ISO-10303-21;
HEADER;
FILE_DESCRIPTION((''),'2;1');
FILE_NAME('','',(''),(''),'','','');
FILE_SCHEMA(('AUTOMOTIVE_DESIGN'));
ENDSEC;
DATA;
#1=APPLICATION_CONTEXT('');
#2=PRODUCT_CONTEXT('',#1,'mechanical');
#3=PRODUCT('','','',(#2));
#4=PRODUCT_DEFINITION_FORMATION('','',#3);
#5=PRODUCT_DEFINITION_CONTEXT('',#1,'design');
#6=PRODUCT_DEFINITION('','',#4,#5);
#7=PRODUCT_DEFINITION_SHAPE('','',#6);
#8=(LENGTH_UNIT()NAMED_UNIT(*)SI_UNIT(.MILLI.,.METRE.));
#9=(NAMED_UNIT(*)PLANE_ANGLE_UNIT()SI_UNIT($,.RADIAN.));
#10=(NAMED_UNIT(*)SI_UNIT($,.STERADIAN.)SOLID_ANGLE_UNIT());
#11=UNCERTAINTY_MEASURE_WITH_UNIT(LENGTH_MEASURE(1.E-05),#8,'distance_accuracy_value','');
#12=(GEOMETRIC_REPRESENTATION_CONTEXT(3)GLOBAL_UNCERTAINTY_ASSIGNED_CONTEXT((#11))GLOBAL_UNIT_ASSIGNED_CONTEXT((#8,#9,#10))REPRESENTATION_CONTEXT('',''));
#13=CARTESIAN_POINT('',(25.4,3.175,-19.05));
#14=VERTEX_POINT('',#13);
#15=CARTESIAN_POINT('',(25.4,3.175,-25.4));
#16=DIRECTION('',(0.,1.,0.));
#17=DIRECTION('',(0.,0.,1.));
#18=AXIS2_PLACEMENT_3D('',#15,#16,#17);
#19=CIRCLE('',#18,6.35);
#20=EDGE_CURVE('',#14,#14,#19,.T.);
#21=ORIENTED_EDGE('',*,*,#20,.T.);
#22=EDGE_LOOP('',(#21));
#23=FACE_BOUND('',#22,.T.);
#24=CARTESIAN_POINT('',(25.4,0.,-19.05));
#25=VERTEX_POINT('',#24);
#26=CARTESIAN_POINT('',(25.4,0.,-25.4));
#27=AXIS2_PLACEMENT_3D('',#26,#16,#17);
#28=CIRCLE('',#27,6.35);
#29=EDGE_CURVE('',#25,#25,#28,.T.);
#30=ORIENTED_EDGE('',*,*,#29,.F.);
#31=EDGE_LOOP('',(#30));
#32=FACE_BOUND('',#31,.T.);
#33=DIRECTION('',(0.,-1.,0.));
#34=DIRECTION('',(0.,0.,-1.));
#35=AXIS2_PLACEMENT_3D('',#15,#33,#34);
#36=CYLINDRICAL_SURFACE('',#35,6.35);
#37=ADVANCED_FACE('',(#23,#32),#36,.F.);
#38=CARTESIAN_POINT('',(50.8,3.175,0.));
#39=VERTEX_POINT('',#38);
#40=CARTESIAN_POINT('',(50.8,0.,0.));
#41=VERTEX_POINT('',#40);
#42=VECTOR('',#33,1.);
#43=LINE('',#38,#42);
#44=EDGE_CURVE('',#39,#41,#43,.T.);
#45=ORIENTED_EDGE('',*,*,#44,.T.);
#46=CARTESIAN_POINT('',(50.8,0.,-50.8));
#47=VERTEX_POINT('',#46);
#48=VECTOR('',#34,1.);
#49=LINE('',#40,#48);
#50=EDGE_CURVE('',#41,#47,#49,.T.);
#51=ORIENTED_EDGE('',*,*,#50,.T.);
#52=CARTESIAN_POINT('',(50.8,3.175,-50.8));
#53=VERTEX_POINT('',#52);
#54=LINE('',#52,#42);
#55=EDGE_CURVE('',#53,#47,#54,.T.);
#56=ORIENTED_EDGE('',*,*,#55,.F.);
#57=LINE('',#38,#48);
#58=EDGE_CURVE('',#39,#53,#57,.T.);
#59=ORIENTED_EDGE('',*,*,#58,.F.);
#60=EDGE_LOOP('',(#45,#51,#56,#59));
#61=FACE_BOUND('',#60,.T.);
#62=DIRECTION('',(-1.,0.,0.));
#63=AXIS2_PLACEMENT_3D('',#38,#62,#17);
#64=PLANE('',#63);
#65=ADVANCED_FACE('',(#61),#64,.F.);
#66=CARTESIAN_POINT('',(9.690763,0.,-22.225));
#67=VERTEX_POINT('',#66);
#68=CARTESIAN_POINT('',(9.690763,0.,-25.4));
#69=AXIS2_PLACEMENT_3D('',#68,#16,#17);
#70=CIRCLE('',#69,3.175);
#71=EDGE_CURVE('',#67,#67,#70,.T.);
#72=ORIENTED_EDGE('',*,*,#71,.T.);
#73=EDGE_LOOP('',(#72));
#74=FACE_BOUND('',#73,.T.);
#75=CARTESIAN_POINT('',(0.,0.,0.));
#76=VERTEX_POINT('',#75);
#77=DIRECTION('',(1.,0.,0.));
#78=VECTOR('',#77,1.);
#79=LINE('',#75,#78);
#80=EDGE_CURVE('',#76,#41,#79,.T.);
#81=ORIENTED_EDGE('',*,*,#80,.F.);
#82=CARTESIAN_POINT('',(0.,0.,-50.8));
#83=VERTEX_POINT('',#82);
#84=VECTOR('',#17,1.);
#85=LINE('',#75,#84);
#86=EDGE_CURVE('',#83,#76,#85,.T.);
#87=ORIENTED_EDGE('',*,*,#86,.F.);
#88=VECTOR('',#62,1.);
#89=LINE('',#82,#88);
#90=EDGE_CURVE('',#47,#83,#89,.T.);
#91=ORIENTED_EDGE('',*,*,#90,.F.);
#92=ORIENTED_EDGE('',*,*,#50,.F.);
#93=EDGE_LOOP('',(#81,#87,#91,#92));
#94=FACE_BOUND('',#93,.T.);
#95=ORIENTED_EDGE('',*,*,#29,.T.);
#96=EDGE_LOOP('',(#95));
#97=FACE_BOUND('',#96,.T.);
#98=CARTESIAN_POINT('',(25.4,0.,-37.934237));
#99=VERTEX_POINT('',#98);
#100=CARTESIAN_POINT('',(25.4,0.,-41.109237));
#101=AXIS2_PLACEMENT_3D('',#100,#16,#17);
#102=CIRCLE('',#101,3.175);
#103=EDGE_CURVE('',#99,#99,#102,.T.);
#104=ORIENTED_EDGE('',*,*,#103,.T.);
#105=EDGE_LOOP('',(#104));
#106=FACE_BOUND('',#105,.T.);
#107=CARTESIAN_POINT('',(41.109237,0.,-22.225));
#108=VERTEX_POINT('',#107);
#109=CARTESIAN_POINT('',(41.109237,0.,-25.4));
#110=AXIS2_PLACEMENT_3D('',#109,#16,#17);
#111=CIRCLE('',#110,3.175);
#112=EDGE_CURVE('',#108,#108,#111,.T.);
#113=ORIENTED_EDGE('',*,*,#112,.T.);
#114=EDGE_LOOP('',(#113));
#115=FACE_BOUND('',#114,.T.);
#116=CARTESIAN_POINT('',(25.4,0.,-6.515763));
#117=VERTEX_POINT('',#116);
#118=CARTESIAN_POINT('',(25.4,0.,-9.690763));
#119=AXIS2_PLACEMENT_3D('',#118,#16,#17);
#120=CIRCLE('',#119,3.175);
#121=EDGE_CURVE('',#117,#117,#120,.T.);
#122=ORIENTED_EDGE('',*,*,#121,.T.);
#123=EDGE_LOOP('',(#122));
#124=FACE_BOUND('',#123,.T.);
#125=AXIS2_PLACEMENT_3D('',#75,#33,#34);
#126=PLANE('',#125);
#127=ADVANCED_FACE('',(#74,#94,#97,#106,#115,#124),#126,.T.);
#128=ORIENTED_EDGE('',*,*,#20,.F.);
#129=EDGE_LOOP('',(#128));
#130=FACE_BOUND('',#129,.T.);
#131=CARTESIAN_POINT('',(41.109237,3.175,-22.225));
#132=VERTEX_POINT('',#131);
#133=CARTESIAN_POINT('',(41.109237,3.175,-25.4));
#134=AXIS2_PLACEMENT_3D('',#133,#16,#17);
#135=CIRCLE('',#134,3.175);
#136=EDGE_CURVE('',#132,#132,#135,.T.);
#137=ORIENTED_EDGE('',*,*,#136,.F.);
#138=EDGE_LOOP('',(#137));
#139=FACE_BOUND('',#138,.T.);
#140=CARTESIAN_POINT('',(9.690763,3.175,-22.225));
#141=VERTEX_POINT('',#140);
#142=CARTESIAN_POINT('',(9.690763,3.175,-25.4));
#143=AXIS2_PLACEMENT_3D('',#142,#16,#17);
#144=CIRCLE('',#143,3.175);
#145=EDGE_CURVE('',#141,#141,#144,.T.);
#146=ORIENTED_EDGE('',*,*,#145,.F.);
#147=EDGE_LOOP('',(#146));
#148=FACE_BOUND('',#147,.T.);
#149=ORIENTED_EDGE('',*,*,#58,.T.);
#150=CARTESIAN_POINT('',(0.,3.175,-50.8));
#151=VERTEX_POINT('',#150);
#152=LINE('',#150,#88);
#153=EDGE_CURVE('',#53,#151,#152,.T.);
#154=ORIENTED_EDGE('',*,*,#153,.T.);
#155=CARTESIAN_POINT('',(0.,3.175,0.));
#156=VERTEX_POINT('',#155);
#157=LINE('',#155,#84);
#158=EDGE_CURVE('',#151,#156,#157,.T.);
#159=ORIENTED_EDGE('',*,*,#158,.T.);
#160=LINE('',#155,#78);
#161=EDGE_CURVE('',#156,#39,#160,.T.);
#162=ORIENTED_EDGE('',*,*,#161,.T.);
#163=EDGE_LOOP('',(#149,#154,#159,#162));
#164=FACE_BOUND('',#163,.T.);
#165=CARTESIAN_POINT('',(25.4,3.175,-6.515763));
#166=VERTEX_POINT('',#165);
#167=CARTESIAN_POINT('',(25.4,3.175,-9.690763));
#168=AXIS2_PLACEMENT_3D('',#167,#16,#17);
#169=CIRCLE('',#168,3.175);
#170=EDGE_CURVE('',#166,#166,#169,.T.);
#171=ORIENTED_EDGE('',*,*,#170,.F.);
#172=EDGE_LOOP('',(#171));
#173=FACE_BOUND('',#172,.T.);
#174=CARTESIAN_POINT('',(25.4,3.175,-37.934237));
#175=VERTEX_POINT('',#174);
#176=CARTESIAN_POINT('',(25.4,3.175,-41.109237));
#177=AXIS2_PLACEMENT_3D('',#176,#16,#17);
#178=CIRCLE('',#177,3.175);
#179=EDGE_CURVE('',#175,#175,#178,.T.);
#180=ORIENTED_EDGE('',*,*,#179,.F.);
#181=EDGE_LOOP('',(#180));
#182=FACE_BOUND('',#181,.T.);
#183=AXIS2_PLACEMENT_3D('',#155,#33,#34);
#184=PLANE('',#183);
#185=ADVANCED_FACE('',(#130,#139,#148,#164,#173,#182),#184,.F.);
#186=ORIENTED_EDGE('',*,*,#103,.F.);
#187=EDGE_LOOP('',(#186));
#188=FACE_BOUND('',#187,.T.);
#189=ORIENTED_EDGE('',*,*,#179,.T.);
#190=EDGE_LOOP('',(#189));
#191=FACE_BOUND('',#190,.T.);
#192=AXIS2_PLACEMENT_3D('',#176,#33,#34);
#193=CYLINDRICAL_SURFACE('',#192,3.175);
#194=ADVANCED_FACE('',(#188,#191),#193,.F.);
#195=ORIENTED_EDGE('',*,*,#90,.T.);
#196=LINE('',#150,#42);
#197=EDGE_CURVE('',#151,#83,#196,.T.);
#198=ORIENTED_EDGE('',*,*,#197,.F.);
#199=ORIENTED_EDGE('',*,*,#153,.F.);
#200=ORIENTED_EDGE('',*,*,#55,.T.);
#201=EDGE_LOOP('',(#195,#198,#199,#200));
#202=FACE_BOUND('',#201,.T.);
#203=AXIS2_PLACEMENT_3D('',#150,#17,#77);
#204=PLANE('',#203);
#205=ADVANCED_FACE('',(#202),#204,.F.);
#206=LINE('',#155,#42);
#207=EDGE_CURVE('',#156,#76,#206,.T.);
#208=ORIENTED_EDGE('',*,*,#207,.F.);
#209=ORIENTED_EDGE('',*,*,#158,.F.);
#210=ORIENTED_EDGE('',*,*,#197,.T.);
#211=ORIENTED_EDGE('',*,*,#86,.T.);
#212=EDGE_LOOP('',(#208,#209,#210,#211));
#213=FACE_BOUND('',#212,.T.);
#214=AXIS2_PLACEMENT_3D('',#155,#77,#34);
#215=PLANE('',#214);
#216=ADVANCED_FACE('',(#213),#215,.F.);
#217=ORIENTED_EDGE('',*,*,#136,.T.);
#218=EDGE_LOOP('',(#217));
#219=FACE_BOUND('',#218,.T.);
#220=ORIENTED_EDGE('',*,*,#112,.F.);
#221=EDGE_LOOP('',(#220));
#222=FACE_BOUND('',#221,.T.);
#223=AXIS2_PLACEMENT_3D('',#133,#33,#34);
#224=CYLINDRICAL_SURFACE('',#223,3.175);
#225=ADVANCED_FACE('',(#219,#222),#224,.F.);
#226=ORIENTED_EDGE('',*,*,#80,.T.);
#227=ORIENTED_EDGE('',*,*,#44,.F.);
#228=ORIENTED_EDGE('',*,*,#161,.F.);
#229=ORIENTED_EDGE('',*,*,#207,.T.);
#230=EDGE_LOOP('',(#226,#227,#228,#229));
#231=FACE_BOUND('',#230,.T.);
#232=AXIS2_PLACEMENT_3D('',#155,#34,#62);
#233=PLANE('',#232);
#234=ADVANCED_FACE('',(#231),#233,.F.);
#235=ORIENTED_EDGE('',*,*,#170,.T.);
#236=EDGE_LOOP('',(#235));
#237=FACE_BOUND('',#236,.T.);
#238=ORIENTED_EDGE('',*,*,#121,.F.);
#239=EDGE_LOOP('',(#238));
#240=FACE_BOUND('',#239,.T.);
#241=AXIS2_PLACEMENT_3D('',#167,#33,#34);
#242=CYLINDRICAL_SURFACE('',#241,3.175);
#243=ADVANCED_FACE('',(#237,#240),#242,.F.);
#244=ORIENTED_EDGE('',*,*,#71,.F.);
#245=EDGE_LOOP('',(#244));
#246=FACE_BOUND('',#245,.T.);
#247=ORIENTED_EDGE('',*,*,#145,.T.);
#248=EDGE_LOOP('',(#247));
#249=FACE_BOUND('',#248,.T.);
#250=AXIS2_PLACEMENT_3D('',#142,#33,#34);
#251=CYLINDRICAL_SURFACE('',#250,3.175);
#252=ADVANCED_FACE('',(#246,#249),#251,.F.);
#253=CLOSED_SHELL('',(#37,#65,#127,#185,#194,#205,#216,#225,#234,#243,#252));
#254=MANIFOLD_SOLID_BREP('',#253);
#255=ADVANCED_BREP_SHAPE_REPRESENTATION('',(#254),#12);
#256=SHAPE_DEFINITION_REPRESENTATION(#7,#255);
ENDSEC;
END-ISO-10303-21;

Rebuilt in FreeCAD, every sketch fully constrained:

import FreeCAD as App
import Part
import Sketcher
from FreeCAD import Vector
Q = App.Units.Quantity


def add_polygon(sketch, points):
    """Adds a closed chain of lines whose ends are joined by coincident constraints."""
    first, n = sketch.GeometryCount, len(points)
    for a, b in zip(points, points[1:] + points[:1]):
        sketch.addGeometry(Part.LineSegment(App.Vector(*a, 0), App.Vector(*b, 0)), False)
    for i in range(n):
        sketch.addConstraint(Sketcher.Constraint("Coincident", first + i, 2, first + (i + 1) % n, 1))

doc = App.newDocument("Part")
body = doc.addObject("PartDesign::Body", "Body")

# Sketch on XZ plane
sketch1 = body.newObject("Sketcher::SketchObject", "Sketch")
sketch1.AttachmentSupport = (doc.getObject("XZ_Plane"), [""])
sketch1.MapMode = "FlatFace"
add_polygon(sketch1, [(0, -50.8), (0, 0), (50.8, 0), (50.8, -50.8)])  # lines 0-3
sketch1.addGeometry(Part.Circle(Vector(25.4, -9.690763, 0), Vector(0, 0, 1), 3.175), False)  # 4
sketch1.addGeometry(Part.Circle(Vector(9.690763, -25.4, 0), Vector(0, 0, 1), 3.175), False)  # 5
sketch1.addGeometry(Part.Circle(Vector(25.4, -25.4, 0), Vector(0, 0, 1), 6.35), False)  # 6
sketch1.addGeometry(Part.Circle(Vector(41.109237, -25.4, 0), Vector(0, 0, 1), 3.175), False)  # 7
sketch1.addGeometry(Part.Circle(Vector(25.4, -41.109237, 0), Vector(0, 0, 1), 3.175), False)  # 8
sketch1.addConstraint([
    Sketcher.Constraint("Vertical", 0),
    Sketcher.Constraint("Horizontal", 1),
    Sketcher.Constraint("Vertical", 2),
    Sketcher.Constraint("Horizontal", 3),
    Sketcher.Constraint("Coincident", 0, 2, -1, 1),
    Sketcher.Constraint("Equal", 4, 5),
    Sketcher.Constraint("Equal", 5, 7),
    Sketcher.Constraint("Equal", 7, 8),
    Sketcher.Constraint("Horizontal", 5, 3, 6, 3),
    Sketcher.Constraint("Horizontal", 6, 3, 7, 3),
    Sketcher.Constraint("Vertical", 4, 3, 6, 3),
    Sketcher.Constraint("Vertical", 6, 3, 8, 3),
    Sketcher.Constraint("Equal", 3, 0),
    Sketcher.Constraint("Diameter", 6, Q("0.5 in")),
    Sketcher.Constraint("Diameter", 4, Q("0.25 in")),
    Sketcher.Constraint("DistanceX", 1, 1, 1, 2, Q("2 in")),
    Sketcher.Constraint("DistanceX", -1, 1, 4, 3, Q("1 in")),
    Sketcher.Constraint("DistanceY", 5, 3, -1, 1, Q("1 in")),
    Sketcher.Constraint("DistanceY", 4, 3, -1, 1, 9.690763),
    Sketcher.Constraint("DistanceX", -1, 1, 5, 3, 9.690763),
    Sketcher.Constraint("DistanceX", -1, 1, 7, 3, 41.109237),
    Sketcher.Constraint("DistanceY", 8, 3, -1, 1, 41.109237),
])
pad1 = body.newObject("PartDesign::Pad", "Pad")
pad1.Profile = sketch1
pad1.Length = Q("0.125 in")
pad1.Reversed = True

doc.recompute()
